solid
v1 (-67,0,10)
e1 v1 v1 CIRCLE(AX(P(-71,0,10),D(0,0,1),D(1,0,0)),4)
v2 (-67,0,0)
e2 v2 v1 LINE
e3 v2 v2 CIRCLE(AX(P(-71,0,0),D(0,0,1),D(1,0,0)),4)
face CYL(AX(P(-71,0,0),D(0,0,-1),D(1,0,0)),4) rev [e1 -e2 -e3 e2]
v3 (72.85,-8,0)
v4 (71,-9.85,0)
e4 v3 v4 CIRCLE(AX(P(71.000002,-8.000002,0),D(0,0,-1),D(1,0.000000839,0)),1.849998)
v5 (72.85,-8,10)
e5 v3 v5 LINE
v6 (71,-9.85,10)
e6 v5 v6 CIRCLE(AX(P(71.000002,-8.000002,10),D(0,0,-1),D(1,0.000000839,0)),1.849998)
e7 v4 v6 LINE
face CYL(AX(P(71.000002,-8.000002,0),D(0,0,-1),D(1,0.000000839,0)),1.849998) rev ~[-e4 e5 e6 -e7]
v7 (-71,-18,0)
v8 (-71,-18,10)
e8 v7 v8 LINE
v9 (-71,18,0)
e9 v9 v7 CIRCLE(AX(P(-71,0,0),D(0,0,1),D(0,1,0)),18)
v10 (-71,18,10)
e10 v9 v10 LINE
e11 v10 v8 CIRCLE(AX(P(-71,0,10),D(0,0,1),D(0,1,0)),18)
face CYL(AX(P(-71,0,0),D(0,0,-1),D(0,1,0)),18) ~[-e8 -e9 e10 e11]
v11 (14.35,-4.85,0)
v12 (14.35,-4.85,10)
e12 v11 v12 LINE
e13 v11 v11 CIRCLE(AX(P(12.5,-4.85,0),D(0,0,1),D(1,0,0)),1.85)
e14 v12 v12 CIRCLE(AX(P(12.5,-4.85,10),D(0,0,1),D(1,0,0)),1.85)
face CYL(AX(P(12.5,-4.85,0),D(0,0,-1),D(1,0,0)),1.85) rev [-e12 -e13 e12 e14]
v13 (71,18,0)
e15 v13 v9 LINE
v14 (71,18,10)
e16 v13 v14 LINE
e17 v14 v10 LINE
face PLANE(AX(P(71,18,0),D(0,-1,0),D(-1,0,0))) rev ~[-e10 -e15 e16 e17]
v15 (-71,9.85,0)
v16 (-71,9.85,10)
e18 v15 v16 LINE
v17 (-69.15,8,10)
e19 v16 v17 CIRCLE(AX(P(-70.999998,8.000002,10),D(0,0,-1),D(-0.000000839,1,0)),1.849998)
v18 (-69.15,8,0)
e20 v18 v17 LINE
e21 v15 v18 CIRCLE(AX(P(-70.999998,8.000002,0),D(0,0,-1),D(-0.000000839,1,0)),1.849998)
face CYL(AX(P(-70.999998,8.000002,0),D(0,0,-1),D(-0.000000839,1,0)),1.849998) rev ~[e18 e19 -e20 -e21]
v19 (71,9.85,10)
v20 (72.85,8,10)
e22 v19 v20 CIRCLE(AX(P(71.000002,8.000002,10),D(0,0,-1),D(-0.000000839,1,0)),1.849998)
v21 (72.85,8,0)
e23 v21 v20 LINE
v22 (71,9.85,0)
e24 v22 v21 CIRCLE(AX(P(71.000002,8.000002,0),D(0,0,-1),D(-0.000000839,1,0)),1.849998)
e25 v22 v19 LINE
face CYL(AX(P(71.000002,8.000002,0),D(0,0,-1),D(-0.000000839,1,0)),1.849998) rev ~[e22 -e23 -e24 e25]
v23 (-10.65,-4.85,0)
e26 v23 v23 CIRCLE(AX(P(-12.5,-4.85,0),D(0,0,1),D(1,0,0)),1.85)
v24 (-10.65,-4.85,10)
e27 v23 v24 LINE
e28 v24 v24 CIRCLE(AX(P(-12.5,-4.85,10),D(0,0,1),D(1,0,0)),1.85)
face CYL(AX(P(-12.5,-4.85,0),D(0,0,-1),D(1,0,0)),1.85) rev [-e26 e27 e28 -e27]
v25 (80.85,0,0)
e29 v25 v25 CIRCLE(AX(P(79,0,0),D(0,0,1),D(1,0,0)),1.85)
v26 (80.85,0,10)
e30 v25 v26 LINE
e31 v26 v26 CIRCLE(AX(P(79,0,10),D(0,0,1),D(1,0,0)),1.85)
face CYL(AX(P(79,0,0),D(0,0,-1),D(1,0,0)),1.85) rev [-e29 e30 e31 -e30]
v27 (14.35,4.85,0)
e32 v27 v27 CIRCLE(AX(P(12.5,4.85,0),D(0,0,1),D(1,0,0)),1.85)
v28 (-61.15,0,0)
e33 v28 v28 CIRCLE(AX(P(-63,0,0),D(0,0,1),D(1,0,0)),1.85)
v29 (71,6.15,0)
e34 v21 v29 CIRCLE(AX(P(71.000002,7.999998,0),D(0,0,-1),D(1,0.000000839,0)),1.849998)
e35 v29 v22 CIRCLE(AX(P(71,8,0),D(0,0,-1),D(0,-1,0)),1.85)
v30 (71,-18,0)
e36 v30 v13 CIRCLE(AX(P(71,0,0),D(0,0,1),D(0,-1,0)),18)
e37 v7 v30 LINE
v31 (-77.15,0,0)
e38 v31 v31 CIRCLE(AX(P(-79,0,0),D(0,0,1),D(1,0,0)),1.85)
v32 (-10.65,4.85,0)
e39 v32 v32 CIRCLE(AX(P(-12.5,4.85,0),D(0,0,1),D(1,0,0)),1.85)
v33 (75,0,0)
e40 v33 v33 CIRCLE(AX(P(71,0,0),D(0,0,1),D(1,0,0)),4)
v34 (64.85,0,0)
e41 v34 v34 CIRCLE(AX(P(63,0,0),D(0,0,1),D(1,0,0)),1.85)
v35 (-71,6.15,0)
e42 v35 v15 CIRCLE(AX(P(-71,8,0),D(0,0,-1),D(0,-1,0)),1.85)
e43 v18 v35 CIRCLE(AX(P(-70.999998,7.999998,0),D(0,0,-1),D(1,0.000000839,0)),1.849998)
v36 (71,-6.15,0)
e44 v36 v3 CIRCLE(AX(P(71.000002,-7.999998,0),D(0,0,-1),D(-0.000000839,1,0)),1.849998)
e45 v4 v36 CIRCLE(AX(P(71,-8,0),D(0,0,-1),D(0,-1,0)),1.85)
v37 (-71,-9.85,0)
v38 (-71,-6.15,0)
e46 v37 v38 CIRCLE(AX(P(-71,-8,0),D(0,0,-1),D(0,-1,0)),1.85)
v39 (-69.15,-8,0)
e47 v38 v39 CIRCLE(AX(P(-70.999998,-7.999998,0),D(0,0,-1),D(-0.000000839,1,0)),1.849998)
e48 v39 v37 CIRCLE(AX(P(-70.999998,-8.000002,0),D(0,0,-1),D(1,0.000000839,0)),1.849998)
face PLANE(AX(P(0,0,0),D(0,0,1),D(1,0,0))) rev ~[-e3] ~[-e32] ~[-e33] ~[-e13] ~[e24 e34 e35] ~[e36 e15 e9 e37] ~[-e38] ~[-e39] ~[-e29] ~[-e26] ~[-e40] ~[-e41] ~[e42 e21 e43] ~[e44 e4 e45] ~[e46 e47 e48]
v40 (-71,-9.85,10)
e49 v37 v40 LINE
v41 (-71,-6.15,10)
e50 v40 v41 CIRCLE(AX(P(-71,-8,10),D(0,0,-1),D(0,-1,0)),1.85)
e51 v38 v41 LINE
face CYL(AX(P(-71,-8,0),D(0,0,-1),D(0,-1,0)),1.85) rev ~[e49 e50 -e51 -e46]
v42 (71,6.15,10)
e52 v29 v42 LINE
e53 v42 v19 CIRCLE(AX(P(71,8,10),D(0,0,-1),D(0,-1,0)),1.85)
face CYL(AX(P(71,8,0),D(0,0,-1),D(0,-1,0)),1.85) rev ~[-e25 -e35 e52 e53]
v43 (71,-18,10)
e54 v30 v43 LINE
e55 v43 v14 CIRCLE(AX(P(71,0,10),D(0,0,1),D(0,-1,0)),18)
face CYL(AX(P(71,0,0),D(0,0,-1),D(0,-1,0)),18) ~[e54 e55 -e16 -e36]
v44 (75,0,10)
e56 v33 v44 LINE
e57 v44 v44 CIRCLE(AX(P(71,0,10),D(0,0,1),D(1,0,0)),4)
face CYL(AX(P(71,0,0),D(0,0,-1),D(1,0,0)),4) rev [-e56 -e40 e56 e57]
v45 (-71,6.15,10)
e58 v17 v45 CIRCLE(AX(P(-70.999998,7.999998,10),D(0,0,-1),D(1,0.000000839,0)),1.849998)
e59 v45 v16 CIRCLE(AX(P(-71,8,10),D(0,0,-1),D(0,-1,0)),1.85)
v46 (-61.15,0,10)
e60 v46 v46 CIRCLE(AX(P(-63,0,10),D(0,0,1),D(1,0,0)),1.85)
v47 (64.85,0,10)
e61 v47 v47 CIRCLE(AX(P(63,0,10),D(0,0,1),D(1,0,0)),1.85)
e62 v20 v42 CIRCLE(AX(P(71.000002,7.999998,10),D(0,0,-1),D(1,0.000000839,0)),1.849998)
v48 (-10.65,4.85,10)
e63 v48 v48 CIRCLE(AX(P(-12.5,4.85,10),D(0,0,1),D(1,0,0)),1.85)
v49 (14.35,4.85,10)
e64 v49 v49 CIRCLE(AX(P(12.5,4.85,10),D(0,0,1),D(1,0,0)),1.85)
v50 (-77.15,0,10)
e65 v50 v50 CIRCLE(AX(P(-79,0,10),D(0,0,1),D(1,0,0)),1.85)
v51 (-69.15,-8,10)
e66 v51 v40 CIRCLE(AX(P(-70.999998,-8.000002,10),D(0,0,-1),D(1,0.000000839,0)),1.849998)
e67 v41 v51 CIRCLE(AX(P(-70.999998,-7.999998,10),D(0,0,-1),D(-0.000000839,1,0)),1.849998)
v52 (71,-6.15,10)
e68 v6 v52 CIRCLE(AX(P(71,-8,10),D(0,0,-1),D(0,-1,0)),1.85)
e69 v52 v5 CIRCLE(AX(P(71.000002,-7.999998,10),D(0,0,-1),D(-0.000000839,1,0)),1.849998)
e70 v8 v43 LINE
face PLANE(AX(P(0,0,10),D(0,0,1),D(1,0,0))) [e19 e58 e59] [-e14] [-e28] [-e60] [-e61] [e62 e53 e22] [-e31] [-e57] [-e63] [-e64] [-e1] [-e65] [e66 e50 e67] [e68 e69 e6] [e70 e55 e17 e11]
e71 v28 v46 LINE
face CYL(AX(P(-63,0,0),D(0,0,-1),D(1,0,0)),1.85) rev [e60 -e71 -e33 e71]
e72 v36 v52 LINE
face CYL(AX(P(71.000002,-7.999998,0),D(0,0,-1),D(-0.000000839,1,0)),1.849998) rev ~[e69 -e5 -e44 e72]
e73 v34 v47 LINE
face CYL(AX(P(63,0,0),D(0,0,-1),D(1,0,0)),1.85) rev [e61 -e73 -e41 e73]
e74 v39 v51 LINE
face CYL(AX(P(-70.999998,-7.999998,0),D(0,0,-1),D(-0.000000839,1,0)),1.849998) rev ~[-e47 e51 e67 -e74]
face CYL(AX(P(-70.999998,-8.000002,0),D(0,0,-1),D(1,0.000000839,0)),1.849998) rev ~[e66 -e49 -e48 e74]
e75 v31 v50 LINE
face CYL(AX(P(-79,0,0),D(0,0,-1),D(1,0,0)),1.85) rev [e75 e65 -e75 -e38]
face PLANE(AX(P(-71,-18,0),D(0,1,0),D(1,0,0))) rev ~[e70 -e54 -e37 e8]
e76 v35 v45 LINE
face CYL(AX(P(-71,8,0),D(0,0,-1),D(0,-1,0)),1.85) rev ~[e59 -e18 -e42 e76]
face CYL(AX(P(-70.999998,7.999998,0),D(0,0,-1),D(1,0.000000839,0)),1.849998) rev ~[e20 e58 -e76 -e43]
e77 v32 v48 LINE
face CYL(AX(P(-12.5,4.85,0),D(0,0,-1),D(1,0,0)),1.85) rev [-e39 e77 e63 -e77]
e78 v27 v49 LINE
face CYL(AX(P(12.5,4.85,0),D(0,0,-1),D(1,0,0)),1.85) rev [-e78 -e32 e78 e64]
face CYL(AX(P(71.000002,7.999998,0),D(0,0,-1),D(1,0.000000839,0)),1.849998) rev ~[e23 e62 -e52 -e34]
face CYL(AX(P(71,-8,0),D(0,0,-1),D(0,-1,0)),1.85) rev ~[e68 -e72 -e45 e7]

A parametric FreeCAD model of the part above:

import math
import FreeCAD as App
import Part
import Sketcher
from FreeCAD import Vector
Q = App.Units.Quantity

doc = App.newDocument("Part")
body = doc.addObject("PartDesign::Body", "Body")

sketch1 = doc.addObject("Sketcher::SketchObject", "Sketch")
body.addObject(sketch1)
sketch1.AttachmentSupport = (doc.XY_Plane, [""])
sketch1.MapMode = "FlatFace"
sketch1.addGeometry([
    Part.LineSegment(Vector(-71, -18, 0), Vector(71, -18, 0)),
    Part.ArcOfCircle(Part.Circle(Vector(71, 0, 0), Vector(0, 0, 1), 18), math.radians(-90), math.radians(90)),
    Part.LineSegment(Vector(71, 18, 0), Vector(-71, 18, 0)),
    Part.ArcOfCircle(Part.Circle(Vector(-71, 0, 0), Vector(0, 0, 1), 18), math.radians(90), math.radians(270)),
    Part.ArcOfCircle(Part.Circle(Vector(-71, -8, 0), Vector(0, 0, 1), 1.85), math.radians(90), math.radians(270)),
    Part.ArcOfCircle(Part.Circle(Vector(-70.999998, -7.999998, 0), Vector(0, 0, 1), 1.849998), math.radians(-0.000048), math.radians(90.000048)),
    Part.ArcOfCircle(Part.Circle(Vector(-70.999998, -8.000002, 0), Vector(0, 0, 1), 1.849998), math.radians(-90.000048), math.radians(0.000048)),
    Part.Circle(Vector(-79, 0, 0), Vector(0, 0, 1), 1.85),
    Part.Circle(Vector(-71, 0, 0), Vector(0, 0, 1), 4),
    Part.Circle(Vector(-63, 0, 0), Vector(0, 0, 1), 1.85),
    Part.Circle(Vector(-12.5, -4.85, 0), Vector(0, 0, 1), 1.85),
    Part.ArcOfCircle(Part.Circle(Vector(71, -8, 0), Vector(0, 0, 1), 1.85), math.radians(90), math.radians(270)),
    Part.ArcOfCircle(Part.Circle(Vector(71.000002, -7.999998, 0), Vector(0, 0, 1), 1.849998), math.radians(-0.000048), math.radians(90.000048)),
    Part.ArcOfCircle(Part.Circle(Vector(71.000002, -8.000002, 0), Vector(0, 0, 1), 1.849998), math.radians(-90.000048), math.radians(0.000048)),
    Part.Circle(Vector(12.5, -4.85, 0), Vector(0, 0, 1), 1.85),
    Part.Circle(Vector(63, 0, 0), Vector(0, 0, 1), 1.85),
    Part.Circle(Vector(71, 0, 0), Vector(0, 0, 1), 4),
    Part.Circle(Vector(79, 0, 0), Vector(0, 0, 1), 1.85),
    Part.Circle(Vector(-12.5, 4.85, 0), Vector(0, 0, 1), 1.85),
    Part.ArcOfCircle(Part.Circle(Vector(-71, 8, 0), Vector(0, 0, 1), 1.85), math.radians(90), math.radians(270)),
    Part.ArcOfCircle(Part.Circle(Vector(-70.999998, 8.000002, 0), Vector(0, 0, 1), 1.849998), math.radians(-0.000048), math.radians(90.000048)),
    Part.ArcOfCircle(Part.Circle(Vector(-70.999998, 7.999998, 0), Vector(0, 0, 1), 1.849998), math.radians(-90.000048), math.radians(0.000048)),
    Part.Circle(Vector(12.5, 4.85, 0), Vector(0, 0, 1), 1.85),
    Part.ArcOfCircle(Part.Circle(Vector(71, 8, 0), Vector(0, 0, 1), 1.85), math.radians(90), math.radians(270)),
    Part.ArcOfCircle(Part.Circle(Vector(71.000002, 8.000002, 0), Vector(0, 0, 1), 1.849998), math.radians(-0.000048), math.radians(90.000048)),
    Part.ArcOfCircle(Part.Circle(Vector(71.000002, 7.999998, 0), Vector(0, 0, 1), 1.849998), math.radians(-90.000048), math.radians(0.000048)),
], False)
sketch1.addConstraint([
    Sketcher.Constraint("Tangent", 0, 2, 1, 1),
    Sketcher.Constraint("Tangent", 1, 2, 2, 1),
    Sketcher.Constraint("Tangent", 2, 2, 3, 1),
    Sketcher.Constraint("Tangent", 3, 2, 0, 1),
    Sketcher.Constraint("Tangent", 4, 1, 5, 2),
    Sketcher.Constraint("Tangent", 5, 1, 6, 2),
    Sketcher.Constraint("Tangent", 6, 1, 4, 2),
    Sketcher.Constraint("Tangent", 11, 1, 12, 2),
    Sketcher.Constraint("Tangent", 12, 1, 13, 2),
    Sketcher.Constraint("Tangent", 13, 1, 11, 2),
    Sketcher.Constraint("Tangent", 19, 1, 20, 2),
    Sketcher.Constraint("Tangent", 20, 1, 21, 2),
    Sketcher.Constraint("Tangent", 21, 1, 19, 2),
    Sketcher.Constraint("Tangent", 23, 1, 24, 2),
    Sketcher.Constraint("Tangent", 24, 1, 25, 2),
    Sketcher.Constraint("Tangent", 25, 1, 23, 2),
    Sketcher.Constraint("Horizontal", 0),
    Sketcher.Constraint("Horizontal", 2),
    Sketcher.Constraint("Coincident", 8, 3, 3, 3),
    Sketcher.Constraint("Coincident", 16, 3, 1, 3),
    Sketcher.Constraint("Equal", 6, 7),
    Sketcher.Constraint("Equal", 7, 9),
    Sketcher.Constraint("Equal", 9, 10),
    Sketcher.Constraint("Equal", 10, 11),
    Sketcher.Constraint("Equal", 13, 14),
    Sketcher.Constraint("Equal", 14, 15),
    Sketcher.Constraint("Equal", 8, 16),
    Sketcher.Constraint("Equal", 15, 17),
    Sketcher.Constraint("Equal", 17, 18),
    Sketcher.Constraint("Equal", 18, 19),
    Sketcher.Constraint("Equal", 21, 22),
    Sketcher.Constraint("Equal", 22, 23),
    Sketcher.Constraint("Symmetric", 1, 3, 3, 3, -1, 1),
    Sketcher.Constraint("Symmetric", 9, 3, 15, 3, -1, 1),
    Sketcher.Constraint("Symmetric", 7, 3, 17, 3, -1, 1),
    Sketcher.Constraint("Symmetric", 14, 3, 18, 3, -1, 1),
    Sketcher.Constraint("Symmetric", 11, 3, 19, 3, -1, 1),
    Sketcher.Constraint("Symmetric", 10, 3, 22, 3, -1, 1),
    Sketcher.Constraint("Symmetric", 4, 3, 23, 3, -1, 1),
    Sketcher.Constraint("Symmetric", 4, 3, 11, 3, -2),
    Sketcher.Constraint("Symmetric", 10, 3, 14, 3, -2),
    Sketcher.Constraint("PointOnObject", 7, 3, -1),
    Sketcher.Constraint("PointOnObject", 9, 3, -1),
    Sketcher.Constraint("Horizontal", 13, 3, 5, 1),
    Sketcher.Constraint("Horizontal", 5, 1, 12, 1),
    Sketcher.Constraint("Horizontal", 25, 3, 20, 1),
    Sketcher.Constraint("Horizontal", 20, 1, 24, 1),
    Sketcher.Constraint("Vertical", 3, 3, 4, 3),
    Sketcher.Constraint("Vertical", 3, 2, 4, 1),
    Sketcher.Constraint("Vertical", 4, 1, 6, 1),
    Sketcher.Constraint("Vertical", 1, 2, 11, 1),
    Sketcher.Constraint("Vertical", 11, 1, 13, 1),
    Sketcher.Constraint("Vertical", 6, 1, 19, 1),
    Sketcher.Constraint("Vertical", 19, 1, 21, 1),
    Sketcher.Constraint("Vertical", 13, 1, 23, 1),
    Sketcher.Constraint("Vertical", 23, 1, 25, 1),
    Sketcher.Constraint("Diameter", 8, Q("8 mm")),
    Sketcher.Constraint("Radius", 1, Q("18 mm")),
    Sketcher.Constraint("Diameter", 7, Q("3.7 mm")),
    Sketcher.Constraint("DistanceX", 0, 1, 0, 2, Q("142 mm")),
    Sketcher.Constraint("DistanceY", 4, 3, -1, 1, Q("8 mm")),
    Sketcher.Constraint("DistanceX", 7, 3, -1, 1, Q("79 mm")),
    Sketcher.Constraint("DistanceX", 9, 3, -1, 1, Q("63 mm")),
    Sketcher.Constraint("DistanceX", 10, 3, 14, 3, Q("25 mm")),
    Sketcher.Constraint("DistanceY", 10, 3, 18, 3, Q("9.7 mm")),
])
pad1 = doc.addObject("PartDesign::Pad", "Pad")
body.addObject(pad1)
pad1.Profile = sketch1
pad1.Length = 10

doc.recompute()
